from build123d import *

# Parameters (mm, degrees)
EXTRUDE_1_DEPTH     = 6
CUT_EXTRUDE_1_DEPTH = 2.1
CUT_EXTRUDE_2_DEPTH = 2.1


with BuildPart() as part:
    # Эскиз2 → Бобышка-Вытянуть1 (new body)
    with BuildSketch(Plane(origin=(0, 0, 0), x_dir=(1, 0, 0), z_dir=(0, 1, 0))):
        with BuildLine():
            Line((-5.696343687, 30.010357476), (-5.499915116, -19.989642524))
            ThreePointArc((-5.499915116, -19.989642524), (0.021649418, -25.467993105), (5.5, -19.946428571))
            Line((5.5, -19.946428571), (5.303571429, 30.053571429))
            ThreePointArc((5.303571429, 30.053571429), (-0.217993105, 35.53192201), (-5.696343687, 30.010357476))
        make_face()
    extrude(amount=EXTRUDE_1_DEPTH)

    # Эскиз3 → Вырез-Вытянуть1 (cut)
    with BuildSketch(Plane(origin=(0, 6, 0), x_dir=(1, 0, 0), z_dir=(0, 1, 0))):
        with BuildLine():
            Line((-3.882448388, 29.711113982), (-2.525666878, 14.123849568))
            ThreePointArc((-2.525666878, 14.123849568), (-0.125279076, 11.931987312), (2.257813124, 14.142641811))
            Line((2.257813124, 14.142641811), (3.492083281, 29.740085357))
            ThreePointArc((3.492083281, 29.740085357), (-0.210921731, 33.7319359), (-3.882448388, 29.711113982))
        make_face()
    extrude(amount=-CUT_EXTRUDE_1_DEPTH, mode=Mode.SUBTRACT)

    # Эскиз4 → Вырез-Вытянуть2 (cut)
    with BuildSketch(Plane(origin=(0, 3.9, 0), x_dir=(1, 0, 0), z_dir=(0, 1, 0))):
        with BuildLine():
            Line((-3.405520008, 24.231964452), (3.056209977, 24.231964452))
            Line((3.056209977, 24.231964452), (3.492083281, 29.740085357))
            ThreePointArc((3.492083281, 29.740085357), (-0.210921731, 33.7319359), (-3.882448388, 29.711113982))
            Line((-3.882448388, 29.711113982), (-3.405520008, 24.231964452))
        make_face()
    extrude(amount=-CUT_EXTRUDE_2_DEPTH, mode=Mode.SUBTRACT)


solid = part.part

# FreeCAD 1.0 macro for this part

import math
import FreeCAD as App
import Part
import Sketcher
Q = App.Units.Quantity

doc = App.newDocument("Part")
body = doc.addObject("PartDesign::Body", "Body")

sketch1 = body.newObject("Sketcher::SketchObject", "Sketch")
sketch1.AttachmentSupport = (doc.getObject("XZ_Plane"), [""])
sketch1.MapMode = "FlatFace"
sketch1.addGeometry([
    Part.LineSegment(App.Vector(-6, -30, 0), App.Vector(-5, 20, 0)),
    Part.ArcOfCircle(Part.Circle(App.Vector(0, 20, 0), App.Vector(0, 0, 1), 6), math.radians(0), math.radians(180)),
    Part.LineSegment(App.Vector(6, 20, 0), App.Vector(5, -30, 0)),
    Part.ArcOfCircle(Part.Circle(App.Vector(0, -30, 0), App.Vector(0, 0, 1), 6), math.radians(180), math.radians(360)),
], False)
sketch1.addConstraint([
    Sketcher.Constraint("Tangent", 0, 2, 1, 2),
    Sketcher.Constraint("Tangent", 1, 1, 2, 1),
    Sketcher.Constraint("Tangent", 2, 2, 3, 2),
    Sketcher.Constraint("Tangent", 3, 1, 0, 1),
    Sketcher.Constraint("Equal", 1, 3),
    Sketcher.Constraint("Radius", 1, Q("5.5 mm")),
    Sketcher.Constraint("DistanceY", 3, 3, 1, 3, Q("50 mm")),
    Sketcher.Constraint("DistanceX", -1, 1, 1, 1, Q("5.5 mm")),
    Sketcher.Constraint("DistanceY", -1, 1, 1, 1, Q("19.946429 mm")),
    Sketcher.Constraint("DistanceX", -1, 1, 2, 2, Q("5.303571 mm")),
])
pad1 = body.newObject("PartDesign::Pad", "Pad")
pad1.Profile = sketch1
pad1.Length = 6
pad1.Reversed = True

sketch2 = body.newObject("Sketcher::SketchObject", "Sketch001")
sketch2.AttachmentSupport = (doc.getObject("XZ_Plane"), [""])
sketch2.MapMode = "FlatFace"
sketch2.AttachmentOffset = App.Placement(App.Vector(0, 0, -6), App.Rotation())
sketch2.addGeometry([
    Part.LineSegment(App.Vector(-3.9, -29.7, 0), App.Vector(-2.5, -14.1, 0)),
    Part.ArcOfCircle(Part.Circle(App.Vector(-0.1, -14.3, 0), App.Vector(0, 0, 1), 2.4), math.radians(5), math.radians(175)),
    Part.LineSegment(App.Vector(2.3, -14.1, 0), App.Vector(3.5, -29.7, 0)),
    Part.ArcOfCircle(Part.Circle(App.Vector(-0.2, -30, 0), App.Vector(0, 0, 1), 3.7), math.radians(175), math.radians(365)),
], False)
sketch2.addConstraint([
    Sketcher.Constraint("Tangent", 0, 2, 1, 2),
    Sketcher.Constraint("Tangent", 1, 1, 2, 1),
    Sketcher.Constraint("Tangent", 2, 2, 3, 2),
    Sketcher.Constraint("Tangent", 3, 1, 0, 1),
    Sketcher.Constraint("Radius", 1, Q("2.4 mm")),
    Sketcher.Constraint("Radius", 3, Q("3.7 mm")),
    Sketcher.Constraint("DistanceX", 3, 3, 1, 1, Q("2.454199 mm")),
    Sketcher.Constraint("DistanceY", 1, 3, -1, 1, Q("14.331969 mm")),
    Sketcher.Constraint("DistanceY", 0, 2, -1, 1, Q("14.12385 mm")),
    Sketcher.Constraint("DistanceX", 3, 1, -1, 1, Q("3.882448 mm")),
])
pocket1 = body.newObject("PartDesign::Pocket", "Pocket")
pocket1.Profile = sketch2
pocket1.Length = 2.1
pocket1.Reversed = True

sketch3 = body.newObject("Sketcher::SketchObject", "Sketch002")
sketch3.AttachmentSupport = (doc.getObject("XZ_Plane"), [""])
sketch3.MapMode = "FlatFace"
sketch3.AttachmentOffset = App.Placement(App.Vector(0, 0, -3.9), App.Rotation())
sketch3.addGeometry([
    Part.LineSegment(App.Vector(-3.4, -24.2, 0), App.Vector(3.1, -24.2, 0)),
    Part.LineSegment(App.Vector(3.1, -24.2, 0), App.Vector(3.5, -29.7, 0)),
    Part.ArcOfCircle(Part.Circle(App.Vector(-0.2, -30, 0), App.Vector(0, 0, 1), 3.7), math.radians(175), math.radians(365)),
    Part.LineSegment(App.Vector(-3.9, -29.7, 0), App.Vector(-3.4, -24.2, 0)),
], False)
sketch3.addConstraint([
    Sketcher.Constraint("Coincident", 0, 2, 1, 1),
    Sketcher.Constraint("Tangent", 1, 2, 2, 2),
    Sketcher.Constraint("Tangent", 2, 1, 3, 1),
    Sketcher.Constraint("Coincident", 3, 2, 0, 1),
    Sketcher.Constraint("Horizontal", 0),
    Sketcher.Constraint("Radius", 2, Q("3.7 mm")),
    Sketcher.Constraint("DistanceY", 2, 3, 0, 2, Q("5.8 mm")),
    Sketcher.Constraint("DistanceX", 0, 1, 0, 2, Q("6.46173 mm")),
    Sketcher.Constraint("Distance", 1, Q("5.52534 mm")),
    Sketcher.Constraint("DistanceX", -1, 1, 0, 2, Q("3.05621 mm")),
    Sketcher.Constraint("DistanceY", 2, 3, -1, 1, Q("30.031964 mm")),
])
pocket2 = body.newObject("PartDesign::Pocket", "Pocket001")
pocket2.Profile = sketch3
pocket2.Length = 2.1
pocket2.Reversed = True

doc.recompute()
